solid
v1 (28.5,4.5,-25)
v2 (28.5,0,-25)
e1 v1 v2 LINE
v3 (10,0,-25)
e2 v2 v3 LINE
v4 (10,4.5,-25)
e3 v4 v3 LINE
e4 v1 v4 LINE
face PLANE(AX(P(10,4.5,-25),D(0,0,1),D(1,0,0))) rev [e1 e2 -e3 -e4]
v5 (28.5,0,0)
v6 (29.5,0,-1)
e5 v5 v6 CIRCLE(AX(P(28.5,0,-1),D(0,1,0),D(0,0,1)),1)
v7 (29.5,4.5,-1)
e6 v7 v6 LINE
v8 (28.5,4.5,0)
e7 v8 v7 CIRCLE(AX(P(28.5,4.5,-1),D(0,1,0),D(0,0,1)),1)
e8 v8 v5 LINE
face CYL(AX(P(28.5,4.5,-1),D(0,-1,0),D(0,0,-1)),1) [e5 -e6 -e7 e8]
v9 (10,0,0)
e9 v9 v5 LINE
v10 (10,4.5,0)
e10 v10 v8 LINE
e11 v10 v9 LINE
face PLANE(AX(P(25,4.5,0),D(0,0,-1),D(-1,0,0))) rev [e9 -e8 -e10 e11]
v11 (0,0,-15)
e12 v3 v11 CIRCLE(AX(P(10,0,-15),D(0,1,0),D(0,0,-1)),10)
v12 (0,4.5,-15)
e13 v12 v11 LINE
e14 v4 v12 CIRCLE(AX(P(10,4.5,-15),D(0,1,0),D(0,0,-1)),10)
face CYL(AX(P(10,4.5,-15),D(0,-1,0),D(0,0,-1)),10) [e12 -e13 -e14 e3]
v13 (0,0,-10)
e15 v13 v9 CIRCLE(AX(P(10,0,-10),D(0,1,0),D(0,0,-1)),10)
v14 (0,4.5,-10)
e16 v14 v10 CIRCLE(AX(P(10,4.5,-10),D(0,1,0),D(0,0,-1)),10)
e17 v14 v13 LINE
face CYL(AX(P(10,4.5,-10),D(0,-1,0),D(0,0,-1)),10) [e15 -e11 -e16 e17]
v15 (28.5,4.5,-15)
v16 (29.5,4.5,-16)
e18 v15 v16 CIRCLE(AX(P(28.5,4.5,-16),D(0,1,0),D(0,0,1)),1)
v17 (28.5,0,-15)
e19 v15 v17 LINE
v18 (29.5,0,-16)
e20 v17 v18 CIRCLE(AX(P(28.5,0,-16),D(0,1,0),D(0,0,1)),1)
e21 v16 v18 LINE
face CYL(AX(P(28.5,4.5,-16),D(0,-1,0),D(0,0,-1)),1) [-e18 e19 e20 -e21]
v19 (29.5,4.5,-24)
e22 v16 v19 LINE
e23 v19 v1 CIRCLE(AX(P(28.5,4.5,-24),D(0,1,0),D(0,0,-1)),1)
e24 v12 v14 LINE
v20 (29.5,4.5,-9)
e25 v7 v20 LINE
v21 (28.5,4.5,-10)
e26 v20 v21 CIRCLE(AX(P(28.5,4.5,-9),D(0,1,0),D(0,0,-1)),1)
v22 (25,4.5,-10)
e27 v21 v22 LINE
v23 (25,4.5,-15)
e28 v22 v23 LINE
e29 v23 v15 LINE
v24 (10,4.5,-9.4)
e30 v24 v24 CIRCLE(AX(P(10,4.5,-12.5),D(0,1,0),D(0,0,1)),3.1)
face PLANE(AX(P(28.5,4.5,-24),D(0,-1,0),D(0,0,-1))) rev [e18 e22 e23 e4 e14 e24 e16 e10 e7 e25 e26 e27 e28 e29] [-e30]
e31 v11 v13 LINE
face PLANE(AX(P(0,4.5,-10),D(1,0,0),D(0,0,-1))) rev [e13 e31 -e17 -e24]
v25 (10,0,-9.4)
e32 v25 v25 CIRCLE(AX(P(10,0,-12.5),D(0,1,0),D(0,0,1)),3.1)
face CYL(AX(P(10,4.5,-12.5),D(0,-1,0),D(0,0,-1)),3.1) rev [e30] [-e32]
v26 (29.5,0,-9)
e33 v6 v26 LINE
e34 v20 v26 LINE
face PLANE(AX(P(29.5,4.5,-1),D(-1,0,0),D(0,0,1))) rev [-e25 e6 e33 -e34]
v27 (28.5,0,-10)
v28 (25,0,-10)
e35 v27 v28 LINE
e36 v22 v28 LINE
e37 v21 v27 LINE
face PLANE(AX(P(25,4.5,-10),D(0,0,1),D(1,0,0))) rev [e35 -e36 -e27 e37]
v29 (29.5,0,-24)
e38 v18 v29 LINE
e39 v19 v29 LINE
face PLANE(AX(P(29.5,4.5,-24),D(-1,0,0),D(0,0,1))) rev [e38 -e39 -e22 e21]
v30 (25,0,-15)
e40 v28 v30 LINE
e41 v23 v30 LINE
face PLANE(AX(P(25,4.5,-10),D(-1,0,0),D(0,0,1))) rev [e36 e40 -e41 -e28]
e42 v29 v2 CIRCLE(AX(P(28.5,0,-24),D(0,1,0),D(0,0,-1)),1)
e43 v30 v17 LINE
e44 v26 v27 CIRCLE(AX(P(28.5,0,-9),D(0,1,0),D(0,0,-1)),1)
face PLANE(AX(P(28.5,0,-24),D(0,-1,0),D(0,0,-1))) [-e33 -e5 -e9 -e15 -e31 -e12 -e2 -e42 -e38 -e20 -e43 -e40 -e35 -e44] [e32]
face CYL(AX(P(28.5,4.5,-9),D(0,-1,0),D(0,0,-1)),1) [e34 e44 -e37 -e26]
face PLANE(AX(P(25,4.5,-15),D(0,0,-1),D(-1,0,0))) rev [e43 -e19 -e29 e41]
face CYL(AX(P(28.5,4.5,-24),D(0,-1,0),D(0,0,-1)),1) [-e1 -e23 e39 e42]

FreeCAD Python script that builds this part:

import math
import FreeCAD as App
import Part
import Sketcher

doc = App.newDocument("Part")
params = doc.addObject("Spreadsheet::Sheet", "Params")
for row, (alias, value) in enumerate([
    ("sketch1_radius", "1 mm"),
    ("sketch1_radius2", "10 mm"),
    ("sketch1_diameter", "6.2 mm"),
    ("sketch1_height", "5 mm"),
    ("sketch1_width", "18.5 mm"),
    ("pad1_length", "4.5 mm"),
], start=1):
    params.set(f"A{row}", alias)
    params.set(f"B{row}", "=" + value)
    params.setAlias(f"B{row}", alias)

body = doc.addObject("PartDesign::Body", "Body")

# Sketch on XZ plane
sketch1 = body.newObject("Sketcher::SketchObject", "Sketch")
sketch1.AttachmentSupport = (doc.getObject("XZ_Plane"), [""])
sketch1.MapMode = "FlatFace"
sketch1.addGeometry([
    Part.LineSegment(App.Vector(10, 0, 0), App.Vector(28.5, 0, 0)),  # 0
    Part.ArcOfCircle(Part.Circle(App.Vector(28.5, -1, 0), App.Vector(0, 0, 1), 1), math.radians(0), math.radians(90)),  # 1
    Part.LineSegment(App.Vector(29.5, -1, 0), App.Vector(29.5, -9, 0)),  # 2
    Part.ArcOfCircle(Part.Circle(App.Vector(28.5, -9, 0), App.Vector(0, 0, 1), 1), math.radians(-90), math.radians(0)),  # 3
    Part.LineSegment(App.Vector(28.5, -10, 0), App.Vector(25, -10, 0)),  # 4
    Part.LineSegment(App.Vector(25, -10, 0), App.Vector(25, -15, 0)),  # 5
    Part.LineSegment(App.Vector(25, -15, 0), App.Vector(28.5, -15, 0)),  # 6
    Part.ArcOfCircle(Part.Circle(App.Vector(28.5, -16, 0), App.Vector(0, 0, 1), 1), math.radians(0), math.radians(90)),  # 7
    Part.LineSegment(App.Vector(29.5, -16, 0), App.Vector(29.5, -24, 0)),  # 8
    Part.ArcOfCircle(Part.Circle(App.Vector(28.5, -24, 0), App.Vector(0, 0, 1), 1), math.radians(-90), math.radians(0)),  # 9
    Part.LineSegment(App.Vector(28.5, -25, 0), App.Vector(10, -25, 0)),  # 10
    Part.ArcOfCircle(Part.Circle(App.Vector(10, -15, 0), App.Vector(0, 0, 1), 10), math.radians(180), math.radians(270)),  # 11
    Part.LineSegment(App.Vector(0, -15, 0), App.Vector(0, -10, 0)),  # 12
    Part.ArcOfCircle(Part.Circle(App.Vector(10, -10, 0), App.Vector(0, 0, 1), 10), math.radians(90), math.radians(180)),  # 13
    Part.Circle(App.Vector(10, -12.5, 0), App.Vector(0, 0, 1), 3.1),  # 14
], False)
sketch1.addConstraint([
    Sketcher.Constraint("Tangent", 0, 2, 1, 2),
    Sketcher.Constraint("Tangent", 1, 1, 2, 1),
    Sketcher.Constraint("Tangent", 2, 2, 3, 2),
    Sketcher.Constraint("Tangent", 3, 1, 4, 1),
    Sketcher.Constraint("Coincident", 4, 2, 5, 1),
    Sketcher.Constraint("Coincident", 5, 2, 6, 1),
    Sketcher.Constraint("Tangent", 6, 2, 7, 2),
    Sketcher.Constraint("Tangent", 7, 1, 8, 1),
    Sketcher.Constraint("Tangent", 8, 2, 9, 2),
    Sketcher.Constraint("Tangent", 9, 1, 10, 1),
    Sketcher.Constraint("Tangent", 10, 2, 11, 2),
    Sketcher.Constraint("Tangent", 11, 1, 12, 1),
    Sketcher.Constraint("Tangent", 12, 2, 13, 2),
    Sketcher.Constraint("Tangent", 13, 1, 0, 1),
    Sketcher.Constraint("Horizontal", 0),
    Sketcher.Constraint("Vertical", 2),
    Sketcher.Constraint("Horizontal", 4),
    Sketcher.Constraint("Vertical", 5),
    Sketcher.Constraint("Horizontal", 6),
    Sketcher.Constraint("Vertical", 8),
    Sketcher.Constraint("Horizontal", 10),
    Sketcher.Constraint("Vertical", 12),
    Sketcher.Constraint("Equal", 1, 3),
    Sketcher.Constraint("Equal", 3, 7),
    Sketcher.Constraint("Equal", 7, 9),
    Sketcher.Constraint("Equal", 11, 13),
    Sketcher.Constraint("PointOnObject", 0, 2, -1),
    Sketcher.Constraint("PointOnObject", 11, 1, -2),
    Sketcher.Constraint("Horizontal", 13, 3, 3, 1),
    Sketcher.Constraint("Horizontal", 11, 3, 5, 2),
    Sketcher.Constraint("Vertical", 3, 3, 7, 3),
    Sketcher.Constraint("Vertical", 13, 3, 14, 3),
    Sketcher.Constraint("Radius", 1, 1.0),
    Sketcher.Constraint("Radius", 11, 10.0),
    Sketcher.Constraint("Diameter", 14, 6.2),
    Sketcher.Constraint("DistanceY", 5, 2, 5, 1, 5.0),
    Sketcher.Constraint("DistanceX", 0, 1, 0, 2, 18.5),
    Sketcher.Constraint("DistanceX", 4, 2, 4, 1, 3.5),
    Sketcher.Constraint("DistanceY", 14, 3, -1, 1, 12.5),
])
sketch1.setExpression("Constraints[32]", "Params.sketch1_radius")
sketch1.setExpression("Constraints[33]", "Params.sketch1_radius2")
sketch1.setExpression("Constraints[34]", "Params.sketch1_diameter")
sketch1.setExpression("Constraints[35]", "Params.sketch1_height")
sketch1.setExpression("Constraints[36]", "Params.sketch1_width")
pad1 = body.newObject("PartDesign::Pad", "Pad")
pad1.Profile = sketch1
pad1.setExpression("Length", "Params.pad1_length")
pad1.Reversed = True

doc.recompute()
